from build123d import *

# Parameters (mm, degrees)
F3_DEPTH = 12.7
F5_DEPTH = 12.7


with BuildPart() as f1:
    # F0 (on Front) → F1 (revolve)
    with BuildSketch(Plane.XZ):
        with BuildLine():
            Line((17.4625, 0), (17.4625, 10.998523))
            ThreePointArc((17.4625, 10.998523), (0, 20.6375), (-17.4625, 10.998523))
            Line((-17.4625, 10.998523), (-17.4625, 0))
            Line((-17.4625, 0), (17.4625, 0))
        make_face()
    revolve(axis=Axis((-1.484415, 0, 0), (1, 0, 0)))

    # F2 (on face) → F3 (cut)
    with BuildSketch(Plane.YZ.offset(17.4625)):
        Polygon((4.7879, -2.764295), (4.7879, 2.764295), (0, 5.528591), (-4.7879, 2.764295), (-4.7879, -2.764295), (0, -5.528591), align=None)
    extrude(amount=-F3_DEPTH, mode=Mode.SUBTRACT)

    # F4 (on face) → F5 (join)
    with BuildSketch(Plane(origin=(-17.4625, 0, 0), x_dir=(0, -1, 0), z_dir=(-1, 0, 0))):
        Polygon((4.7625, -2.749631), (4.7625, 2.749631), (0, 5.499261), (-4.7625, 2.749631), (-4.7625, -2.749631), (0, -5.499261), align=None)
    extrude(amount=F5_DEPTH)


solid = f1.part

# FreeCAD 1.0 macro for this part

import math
import FreeCAD as App
import Part
import Sketcher

V = App.Vector
Q = App.Units.Quantity


def add_polygon(sketch, points):
    """Adds a closed chain of lines whose ends are joined by coincident constraints."""
    first, n = sketch.GeometryCount, len(points)
    for a, b in zip(points, points[1:] + points[:1]):
        sketch.addGeometry(Part.LineSegment(App.Vector(*a, 0), App.Vector(*b, 0)), False)
    for i in range(n):
        sketch.addConstraint(Sketcher.Constraint("Coincident", first + i, 2, first + (i + 1) % n, 1))

doc = App.newDocument("Part")
params = doc.addObject("Spreadsheet::Sheet", "Params")
for row, (alias, value) in enumerate([
    ("sketch1_radius", "0.8125 in"),
    ("sketch1_width", "1.375 in"),
    ("revolution_angle", "360 deg"),
    ("pocket1_length", "0.5 in"),
    ("pad1_length", "0.5 in"),
], start=1):
    params.set(f"A{row}", alias)
    params.set(f"B{row}", "=" + value)
    params.setAlias(f"B{row}", alias)

body = doc.addObject("PartDesign::Body", "Body")

# Sketch on XZ plane
sketch1 = body.newObject("Sketcher::SketchObject", "Sketch")
sketch1.AttachmentSupport = (doc.getObject("XZ_Plane"), [""])
sketch1.MapMode = "FlatFace"
sketch1.addGeometry([
    Part.LineSegment(V(17.4625, 0, 0), V(17.4625, 10.998523, 0)),
    Part.ArcOfCircle(Part.Circle(V(0, 0, 0), V(0, 0, 1), 20.6375), math.radians(32.204229), math.radians(147.795771)),
    Part.LineSegment(V(-17.4625, 10.998523, 0), V(-17.4625, 0, 0)),
    Part.LineSegment(V(-17.4625, 0, 0), V(17.4625, 0, 0)),
], False)
sketch1.addConstraint([
    Sketcher.Constraint("Coincident", 0, 2, 1, 1),
    Sketcher.Constraint("Coincident", 1, 2, 2, 1),
    Sketcher.Constraint("Coincident", 2, 2, 3, 1),
    Sketcher.Constraint("Coincident", 3, 2, 0, 1),
    Sketcher.Constraint("Vertical", 0),
    Sketcher.Constraint("Vertical", 2),
    Sketcher.Constraint("Horizontal", 3),
    Sketcher.Constraint("Coincident", 1, 3, -1, 1),
    Sketcher.Constraint("Symmetric", 2, 2, 3, 2, -1, 1),
    Sketcher.Constraint("Radius", 1, Q("0.8125 in")),
    Sketcher.Constraint("DistanceX", 3, 1, 3, 2, Q("1.375 in")),
])
sketch1.setExpression("Constraints[9]", "Params.sketch1_radius")
sketch1.setExpression("Constraints[10]", "Params.sketch1_width")
revolution = body.newObject("PartDesign::Revolution", "Revolution")
revolution.Profile = sketch1
revolution.ReferenceAxis = (sketch1, ["H_Axis"])
revolution.setExpression("Angle", "Params.revolution_angle")

# Sketch on YZ plane
sketch2 = body.newObject("Sketcher::SketchObject", "Sketch001")
sketch2.AttachmentSupport = (doc.getObject("YZ_Plane"), [""])
sketch2.MapMode = "FlatFace"
sketch2.AttachmentOffset = App.Placement(V(0, 0, 0.6875 * 25.4), App.Rotation())
add_polygon(sketch2, [(4.7879, -2.764295), (4.7879, 2.764295), (0, 5.528591), (-4.7879, 2.764295), (-4.7879, -2.764295), (0, -5.528591)])  # lines 0-5
sketch2.addConstraint([
    Sketcher.Constraint("Vertical", 0),
    Sketcher.Constraint("Vertical", 3),
    Sketcher.Constraint("Symmetric", 0, 2, 3, 2, -1, 1),
    Sketcher.Constraint("Symmetric", 1, 2, 4, 2, -1, 1),
    Sketcher.Constraint("PointOnObject", 1, 2, -2),
    Sketcher.Constraint("Parallel", 2, 5),
    Sketcher.Constraint("Horizontal", 0, 2, 2, 2),
    Sketcher.Constraint("Angle", 1, Q("149.999994 deg")),
    Sketcher.Constraint("DistanceX", 2, 2, 0, 2, Q("0.377 in")),
    Sketcher.Constraint("DistanceY", 0, 1, 0, 2, Q("5.52859 mm")),
])
pocket1 = body.newObject("PartDesign::Pocket", "Pocket")
pocket1.Profile = sketch2
pocket1.setExpression("Length", "Params.pocket1_length")

# Sketch on YZ plane
sketch3 = body.newObject("Sketcher::SketchObject", "Sketch002")
sketch3.AttachmentSupport = (doc.getObject("YZ_Plane"), [""])
sketch3.MapMode = "FlatFace"
sketch3.AttachmentOffset = App.Placement(V(0, 0, -0.6875 * 25.4), App.Rotation())
add_polygon(sketch3, [(-4.7625, -2.749631), (-4.7625, 2.749631), (0, 5.499261), (4.7625, 2.749631), (4.7625, -2.749631), (0, -5.499261)])  # lines 0-5
sketch3.addConstraint([
    Sketcher.Constraint("Vertical", 0),
    Sketcher.Constraint("Vertical", 3),
    Sketcher.Constraint("Symmetric", 0, 2, 3, 2, -1, 1),
    Sketcher.Constraint("Symmetric", 1, 2, 4, 2, -1, 1),
    Sketcher.Constraint("PointOnObject", 1, 2, -2),
    Sketcher.Constraint("Parallel", 2, 5),
    Sketcher.Constraint("Horizontal", 0, 2, 2, 2),
    Sketcher.Constraint("Angle", 1, Q("29.999994 deg")),
    Sketcher.Constraint("DistanceX", 0, 2, -1, 1, Q("0.1875 in")),
    Sketcher.Constraint("DistanceY", 0, 1, 0, 2, Q("5.499262 mm")),
])
pad1 = body.newObject("PartDesign::Pad", "Pad")
pad1.Profile = sketch3
pad1.setExpression("Length", "Params.pad1_length")
pad1.Reversed = True

doc.recompute()
